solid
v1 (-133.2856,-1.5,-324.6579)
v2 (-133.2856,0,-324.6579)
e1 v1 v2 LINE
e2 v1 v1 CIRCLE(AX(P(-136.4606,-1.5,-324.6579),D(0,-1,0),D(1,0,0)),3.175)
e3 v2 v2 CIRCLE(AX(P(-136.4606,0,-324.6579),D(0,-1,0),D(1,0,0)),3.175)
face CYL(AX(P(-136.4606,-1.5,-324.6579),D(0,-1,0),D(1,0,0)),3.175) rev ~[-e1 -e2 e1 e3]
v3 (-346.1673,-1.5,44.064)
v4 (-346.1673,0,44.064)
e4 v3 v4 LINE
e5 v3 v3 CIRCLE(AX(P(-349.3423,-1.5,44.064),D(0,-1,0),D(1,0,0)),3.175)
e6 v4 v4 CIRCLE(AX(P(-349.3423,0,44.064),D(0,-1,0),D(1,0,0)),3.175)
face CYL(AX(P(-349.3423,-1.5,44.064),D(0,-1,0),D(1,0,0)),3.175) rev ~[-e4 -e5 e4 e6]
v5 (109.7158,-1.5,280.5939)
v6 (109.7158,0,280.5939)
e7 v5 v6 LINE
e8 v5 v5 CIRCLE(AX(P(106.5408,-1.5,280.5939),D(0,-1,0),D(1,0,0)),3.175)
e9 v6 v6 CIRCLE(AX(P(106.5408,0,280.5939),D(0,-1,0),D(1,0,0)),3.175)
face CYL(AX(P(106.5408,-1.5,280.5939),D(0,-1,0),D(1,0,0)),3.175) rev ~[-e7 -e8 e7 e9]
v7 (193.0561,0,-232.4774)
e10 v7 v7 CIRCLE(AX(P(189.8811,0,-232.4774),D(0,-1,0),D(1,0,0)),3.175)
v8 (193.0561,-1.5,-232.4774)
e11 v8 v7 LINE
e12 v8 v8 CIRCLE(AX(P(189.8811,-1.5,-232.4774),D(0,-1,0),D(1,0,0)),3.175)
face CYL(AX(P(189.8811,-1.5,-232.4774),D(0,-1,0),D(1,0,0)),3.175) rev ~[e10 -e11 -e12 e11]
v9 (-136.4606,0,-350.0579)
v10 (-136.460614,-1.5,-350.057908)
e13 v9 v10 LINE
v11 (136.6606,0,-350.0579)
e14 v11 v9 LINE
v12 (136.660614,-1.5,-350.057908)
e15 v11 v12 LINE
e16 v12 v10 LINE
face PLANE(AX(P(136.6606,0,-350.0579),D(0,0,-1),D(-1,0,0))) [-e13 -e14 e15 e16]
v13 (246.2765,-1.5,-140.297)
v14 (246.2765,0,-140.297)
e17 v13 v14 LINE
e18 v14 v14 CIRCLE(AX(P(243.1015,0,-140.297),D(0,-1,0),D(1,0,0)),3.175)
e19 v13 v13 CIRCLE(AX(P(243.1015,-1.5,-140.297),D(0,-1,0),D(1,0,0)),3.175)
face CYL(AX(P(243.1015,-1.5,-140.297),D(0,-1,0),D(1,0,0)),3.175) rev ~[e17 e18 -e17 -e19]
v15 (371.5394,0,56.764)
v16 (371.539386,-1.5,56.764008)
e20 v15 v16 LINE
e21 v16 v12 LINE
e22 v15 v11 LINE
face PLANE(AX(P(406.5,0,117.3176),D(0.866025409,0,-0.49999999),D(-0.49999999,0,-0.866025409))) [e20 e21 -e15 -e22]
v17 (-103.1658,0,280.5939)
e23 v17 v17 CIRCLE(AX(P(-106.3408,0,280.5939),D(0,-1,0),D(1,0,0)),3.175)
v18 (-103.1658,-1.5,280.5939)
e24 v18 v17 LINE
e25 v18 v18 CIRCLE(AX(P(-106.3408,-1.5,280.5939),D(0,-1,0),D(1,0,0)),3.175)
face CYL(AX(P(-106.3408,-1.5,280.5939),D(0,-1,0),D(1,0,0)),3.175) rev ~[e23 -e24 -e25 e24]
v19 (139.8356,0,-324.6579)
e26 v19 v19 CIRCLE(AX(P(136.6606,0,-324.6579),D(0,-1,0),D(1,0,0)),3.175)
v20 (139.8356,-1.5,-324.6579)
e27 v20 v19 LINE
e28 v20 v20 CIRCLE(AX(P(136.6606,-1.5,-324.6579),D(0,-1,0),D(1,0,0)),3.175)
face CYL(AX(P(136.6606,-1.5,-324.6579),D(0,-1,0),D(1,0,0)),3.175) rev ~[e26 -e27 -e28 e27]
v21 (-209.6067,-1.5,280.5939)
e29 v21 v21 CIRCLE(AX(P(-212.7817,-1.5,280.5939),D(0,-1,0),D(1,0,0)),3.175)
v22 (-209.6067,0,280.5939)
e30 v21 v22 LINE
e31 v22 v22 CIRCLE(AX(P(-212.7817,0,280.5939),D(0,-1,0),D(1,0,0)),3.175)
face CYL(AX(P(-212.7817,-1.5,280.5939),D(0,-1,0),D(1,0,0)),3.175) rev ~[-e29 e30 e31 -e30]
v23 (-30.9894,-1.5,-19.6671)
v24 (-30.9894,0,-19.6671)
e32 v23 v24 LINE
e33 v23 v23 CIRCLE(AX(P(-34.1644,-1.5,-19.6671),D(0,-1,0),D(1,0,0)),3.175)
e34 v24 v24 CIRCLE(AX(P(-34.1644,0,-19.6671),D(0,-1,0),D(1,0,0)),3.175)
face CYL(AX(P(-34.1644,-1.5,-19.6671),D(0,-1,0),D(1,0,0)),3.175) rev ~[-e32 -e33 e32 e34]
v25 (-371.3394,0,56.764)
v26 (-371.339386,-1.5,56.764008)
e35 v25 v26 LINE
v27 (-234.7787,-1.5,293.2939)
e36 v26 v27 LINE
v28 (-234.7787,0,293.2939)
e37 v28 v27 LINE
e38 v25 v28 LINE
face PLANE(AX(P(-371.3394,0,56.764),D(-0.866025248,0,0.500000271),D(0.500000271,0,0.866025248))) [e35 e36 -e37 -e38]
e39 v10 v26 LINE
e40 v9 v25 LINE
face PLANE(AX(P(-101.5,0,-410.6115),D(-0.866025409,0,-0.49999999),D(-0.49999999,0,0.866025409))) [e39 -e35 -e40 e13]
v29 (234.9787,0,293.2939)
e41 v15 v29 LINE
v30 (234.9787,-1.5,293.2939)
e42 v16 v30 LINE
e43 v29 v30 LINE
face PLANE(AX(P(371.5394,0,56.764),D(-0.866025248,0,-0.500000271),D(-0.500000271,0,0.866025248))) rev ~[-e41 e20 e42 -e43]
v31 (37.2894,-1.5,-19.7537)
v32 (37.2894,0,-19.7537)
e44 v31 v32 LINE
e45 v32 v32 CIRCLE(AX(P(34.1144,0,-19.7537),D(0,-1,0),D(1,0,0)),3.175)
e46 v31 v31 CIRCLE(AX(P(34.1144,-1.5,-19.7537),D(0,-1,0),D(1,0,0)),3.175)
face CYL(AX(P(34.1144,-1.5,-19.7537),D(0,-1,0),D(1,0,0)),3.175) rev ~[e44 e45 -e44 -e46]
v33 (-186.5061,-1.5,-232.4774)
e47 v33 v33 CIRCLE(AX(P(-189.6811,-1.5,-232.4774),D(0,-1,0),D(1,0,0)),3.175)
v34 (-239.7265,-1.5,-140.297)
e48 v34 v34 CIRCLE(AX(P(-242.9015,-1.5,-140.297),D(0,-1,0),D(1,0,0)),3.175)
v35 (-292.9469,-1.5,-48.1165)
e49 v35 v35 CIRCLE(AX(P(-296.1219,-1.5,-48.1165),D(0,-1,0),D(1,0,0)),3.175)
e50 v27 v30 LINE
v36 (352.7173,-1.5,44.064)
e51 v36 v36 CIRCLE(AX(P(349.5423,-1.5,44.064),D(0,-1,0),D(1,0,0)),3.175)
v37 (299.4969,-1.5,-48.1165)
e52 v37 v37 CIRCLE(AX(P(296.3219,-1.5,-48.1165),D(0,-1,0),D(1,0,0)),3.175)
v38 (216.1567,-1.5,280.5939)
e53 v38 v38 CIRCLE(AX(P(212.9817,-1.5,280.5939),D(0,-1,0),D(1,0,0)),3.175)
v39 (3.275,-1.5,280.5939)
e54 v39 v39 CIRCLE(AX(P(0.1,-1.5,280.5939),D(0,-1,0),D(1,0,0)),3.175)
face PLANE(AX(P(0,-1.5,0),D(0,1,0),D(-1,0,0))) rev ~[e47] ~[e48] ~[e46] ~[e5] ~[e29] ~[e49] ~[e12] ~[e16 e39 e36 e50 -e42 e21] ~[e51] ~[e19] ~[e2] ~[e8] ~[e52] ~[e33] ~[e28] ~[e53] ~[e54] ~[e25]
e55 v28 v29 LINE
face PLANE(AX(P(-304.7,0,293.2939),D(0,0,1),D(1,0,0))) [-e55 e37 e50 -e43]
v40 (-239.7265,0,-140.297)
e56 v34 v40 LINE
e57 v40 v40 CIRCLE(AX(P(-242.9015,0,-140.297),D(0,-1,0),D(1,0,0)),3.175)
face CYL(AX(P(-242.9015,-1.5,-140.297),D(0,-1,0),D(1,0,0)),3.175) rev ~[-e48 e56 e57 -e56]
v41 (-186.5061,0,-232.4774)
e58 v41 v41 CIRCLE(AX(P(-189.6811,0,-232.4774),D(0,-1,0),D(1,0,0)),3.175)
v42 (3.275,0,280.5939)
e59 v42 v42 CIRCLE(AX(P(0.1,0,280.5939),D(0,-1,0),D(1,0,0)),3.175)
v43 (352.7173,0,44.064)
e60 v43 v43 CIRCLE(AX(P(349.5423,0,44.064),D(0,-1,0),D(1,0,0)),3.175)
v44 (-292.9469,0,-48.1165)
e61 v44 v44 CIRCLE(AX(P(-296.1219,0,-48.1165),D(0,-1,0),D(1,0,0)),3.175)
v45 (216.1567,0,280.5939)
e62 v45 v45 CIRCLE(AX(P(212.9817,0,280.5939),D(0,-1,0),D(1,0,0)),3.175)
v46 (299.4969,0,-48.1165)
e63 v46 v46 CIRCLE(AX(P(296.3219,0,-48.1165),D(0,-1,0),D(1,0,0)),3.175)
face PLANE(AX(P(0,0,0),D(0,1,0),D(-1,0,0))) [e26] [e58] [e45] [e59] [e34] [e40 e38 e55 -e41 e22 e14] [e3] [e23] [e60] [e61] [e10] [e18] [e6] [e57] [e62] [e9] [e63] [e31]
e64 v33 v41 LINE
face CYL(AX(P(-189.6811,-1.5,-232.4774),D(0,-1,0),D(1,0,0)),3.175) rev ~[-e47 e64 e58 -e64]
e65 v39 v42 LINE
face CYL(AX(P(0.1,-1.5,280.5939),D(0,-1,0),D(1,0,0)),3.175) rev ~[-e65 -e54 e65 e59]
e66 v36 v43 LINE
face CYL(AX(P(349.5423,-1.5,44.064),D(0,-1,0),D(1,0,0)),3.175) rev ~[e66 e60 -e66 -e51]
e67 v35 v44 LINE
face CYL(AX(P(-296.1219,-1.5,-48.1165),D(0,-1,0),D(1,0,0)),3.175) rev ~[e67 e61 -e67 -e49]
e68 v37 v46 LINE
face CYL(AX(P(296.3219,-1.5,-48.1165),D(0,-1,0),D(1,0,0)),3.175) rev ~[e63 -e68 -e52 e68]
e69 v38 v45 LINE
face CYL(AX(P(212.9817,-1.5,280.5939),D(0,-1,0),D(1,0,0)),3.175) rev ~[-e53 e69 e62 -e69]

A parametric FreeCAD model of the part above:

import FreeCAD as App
import Part
import Sketcher
from FreeCAD import Vector
Q = App.Units.Quantity

doc = App.newDocument("Part")
body = doc.addObject("PartDesign::Body", "Body")

# Sketch on XZ plane
sketch1 = body.newObject("Sketcher::SketchObject", "Sketch")
sketch1.AttachmentSupport = (doc.getObject("XZ_Plane"), [""])
sketch1.MapMode = "FlatFace"
sketch1.addGeometry([
    Part.LineSegment(Vector(101.7, -410.6115, 0), Vector(-101.5, -410.6115, 0)),  # 0
    Part.LineSegment(Vector(-101.5, -410.6115, 0), Vector(-406.3, 117.3176, 0)),  # 1
    Part.LineSegment(Vector(-406.3, 117.3176, 0), Vector(-304.7, 293.2939, 0)),  # 2
    Part.LineSegment(Vector(-304.7, 293.2939, 0), Vector(304.9, 293.2939, 0)),  # 3
    Part.LineSegment(Vector(304.9, 293.2939, 0), Vector(406.5, 117.3176, 0)),  # 4
    Part.LineSegment(Vector(406.5, 117.3176, 0), Vector(101.7, -410.6115, 0)),  # 5
], False)
sketch1.addConstraint([
    Sketcher.Constraint("Coincident", 0, 2, 1, 1),
    Sketcher.Constraint("Coincident", 1, 2, 2, 1),
    Sketcher.Constraint("Coincident", 2, 2, 3, 1),
    Sketcher.Constraint("Coincident", 3, 2, 4, 1),
    Sketcher.Constraint("Coincident", 4, 2, 5, 1),
    Sketcher.Constraint("Coincident", 5, 2, 0, 1),
    Sketcher.Constraint("Horizontal", 0),
    Sketcher.Constraint("Horizontal", 3),
    Sketcher.Constraint("Parallel", 1, 4),
    Sketcher.Constraint("Parallel", 2, 5),
    Sketcher.Constraint("Horizontal", 1, 2, 4, 2),
    Sketcher.Constraint("Equal", 2, 4),
    Sketcher.Constraint("DistanceX", 0, 2, 0, 1, Q("8 in")),
    Sketcher.Constraint("DistanceX", 3, 1, 3, 2, Q("24 in")),
    Sketcher.Constraint("Distance", 1, Q("24 in")),
    Sketcher.Constraint("Distance", 2, Q("8 in")),
    Sketcher.Constraint("DistanceY", -1, 1, 2, 2, Q("11.547 in")),
    Sketcher.Constraint("DistanceX", 0, 2, -1, 1, 101.5),
])
pad1 = body.newObject("PartDesign::Pad", "Pad")
pad1.Profile = sketch1
pad1.Length = 1.5

# Sketch on XZ plane
sketch2 = body.newObject("Sketcher::SketchObject", "Sketch001")
sketch2.AttachmentSupport = (doc.getObject("XZ_Plane"), [""])
sketch2.MapMode = "FlatFace"
sketch2.addGeometry([
    Part.LineSegment(Vector(101.7, -410.6115, 0), Vector(-101.5, -410.6115, 0)),  # 0
    Part.LineSegment(Vector(-101.5, -410.6115, 0), Vector(-136.460627, -350.057916, 0)),  # 1
    Part.LineSegment(Vector(-136.4606, -350.0579, 0), Vector(136.6606, -350.0579, 0)),  # 2
    Part.LineSegment(Vector(136.660627, -350.057916, 0), Vector(101.7, -410.6115, 0)),  # 3
    Part.LineSegment(Vector(-234.7787, 293.2939, 0), Vector(-371.3394, 56.764, 0)),  # 4
    Part.LineSegment(Vector(-371.339373, 56.764016, 0), Vector(-406.3, 117.3176, 0)),  # 5
    Part.LineSegment(Vector(-406.3, 117.3176, 0), Vector(-304.7, 293.2939, 0)),  # 6
    Part.LineSegment(Vector(-304.7, 293.2939, 0), Vector(-234.7787, 293.2939, 0)),  # 7
    Part.LineSegment(Vector(406.5, 117.3176, 0), Vector(371.539373, 56.764016, 0)),  # 8
    Part.LineSegment(Vector(371.5394, 56.764, 0), Vector(234.9787, 293.2939, 0)),  # 9
    Part.LineSegment(Vector(234.9787, 293.2939, 0), Vector(304.9, 293.2939, 0)),  # 10
    Part.LineSegment(Vector(304.9, 293.2939, 0), Vector(406.5, 117.3176, 0)),  # 11
], False)
sketch2.addConstraint([
    Sketcher.Constraint("Coincident", 0, 2, 1, 1),
    Sketcher.Constraint("Coincident", 1, 2, 2, 1),
    Sketcher.Constraint("Coincident", 2, 2, 3, 1),
    Sketcher.Constraint("Coincident", 3, 2, 0, 1),
    Sketcher.Constraint("Coincident", 4, 2, 5, 1),
    Sketcher.Constraint("Coincident", 5, 2, 6, 1),
    Sketcher.Constraint("Coincident", 6, 2, 7, 1),
    Sketcher.Constraint("Coincident", 7, 2, 4, 1),
    Sketcher.Constraint("Coincident", 8, 2, 9, 1),
    Sketcher.Constraint("Coincident", 9, 2, 10, 1),
    Sketcher.Constraint("Coincident", 10, 2, 11, 1),
    Sketcher.Constraint("Coincident", 11, 2, 8, 1),
    Sketcher.Constraint("Horizontal", 0),
    Sketcher.Constraint("Horizontal", 2),
    Sketcher.Constraint("Horizontal", 7),
    Sketcher.Constraint("Horizontal", 10),
    Sketcher.Constraint("Parallel", 3, 4),
    Sketcher.Constraint("Parallel", 1, 5),
    Sketcher.Constraint("Parallel", 4, 6),
    Sketcher.Constraint("Parallel", 6, 8),
    Sketcher.Constraint("Parallel", 5, 9),
    Sketcher.Constraint("Parallel", 9, 11),
    Sketcher.Constraint("Horizontal", 4, 2, 8, 2),
    Sketcher.Constraint("Horizontal", 7, 2, 9, 2),
    Sketcher.Constraint("Horizontal", 5, 2, 11, 2),
    Sketcher.Constraint("Equal", 1, 3),
    Sketcher.Constraint("Equal", 3, 5),
    Sketcher.Constraint("DistanceX", 0, 2, 0, 1, Q("8 in")),
    Sketcher.Constraint("Distance", 6, Q("8 in")),
    Sketcher.Constraint("Angle", 1, Q("120 deg")),
    Sketcher.Constraint("DistanceY", 0, 2, 1, 2, Q("2.384 in")),
    Sketcher.Constraint("DistanceX", 4, 2, 2, 2, Q("20 in")),
    Sketcher.Constraint("DistanceX", 1, 2, 8, 2, Q("20 in")),
    Sketcher.Constraint("DistanceY", -1, 1, 6, 2, Q("11.547 in")),
    Sketcher.Constraint("DistanceY", 0, 2, -1, 1, Q("16.1658 in")),
    Sketcher.Constraint("DistanceX", 0, 2, -1, 1, 101.5),
])
pocket1 = body.newObject("PartDesign::Pocket", "Pocket")
pocket1.Profile = sketch2
pocket1.Length = Q("1 in")
pocket1.Reversed = True

# Sketch on XZ plane
sketch3 = body.newObject("Sketcher::SketchObject", "Sketch002")
sketch3.AttachmentSupport = (doc.getObject("XZ_Plane"), [""])
sketch3.MapMode = "FlatFace"
sketch3.AttachmentOffset = App.Placement(Vector(0, 0, 1.5), App.Rotation())
sketch3.addGeometry([
    Part.Circle(Vector(-349.3423, 44.064, 0), Vector(0, 0, 1), 3.175),  # 0
    Part.Circle(Vector(-212.7817, 280.5939, 0), Vector(0, 0, 1), 3.175),  # 1
    Part.Circle(Vector(212.9817, 280.5939, 0), Vector(0, 0, 1), 3.175),  # 2
    Part.Circle(Vector(349.5423, 44.064, 0), Vector(0, 0, 1), 3.175),  # 3
    Part.Circle(Vector(136.6606, -324.6579, 0), Vector(0, 0, 1), 3.175),  # 4
    Part.Circle(Vector(-136.4606, -324.6579, 0), Vector(0, 0, 1), 3.175),  # 5
], False)
sketch3.addConstraint([
    Sketcher.Constraint("Equal", 0, 1),
    Sketcher.Constraint("Equal", 1, 2),
    Sketcher.Constraint("Equal", 2, 3),
    Sketcher.Constraint("Equal", 3, 4),
    Sketcher.Constraint("Equal", 4, 5),
    Sketcher.Constraint("Horizontal", 1, 3, 2, 3),
    Sketcher.Constraint("Horizontal", 0, 3, 3, 3),
    Sketcher.Constraint("Horizontal", 4, 3, 5, 3),
    Sketcher.Constraint("Diameter", 0, Q("0.25 in")),
    Sketcher.Constraint("DistanceX", 1, 3, 2, 3, 425.7634),
    Sketcher.Constraint("DistanceY", -1, 1, 1, 3, Q("11.047 in")),
    Sketcher.Constraint("DistanceY", -1, 1, 0, 3, Q("1.7348 in")),
    Sketcher.Constraint("DistanceX", -1, 1, 2, 3, Q("8.3851 in")),
    Sketcher.Constraint("DistanceX", -1, 1, 3, 3, Q("13.7615 in")),
    Sketcher.Constraint("DistanceY", 4, 3, -1, 1, Q("12.7818 in")),
    Sketcher.Constraint("DistanceX", 0, 3, 1, 3, Q("5.3764 in")),
    Sketcher.Constraint("DistanceX", 5, 3, 4, 3, Q("10.7528 in")),
    Sketcher.Constraint("DistanceX", -1, 1, 4, 3, 136.6606),
])
pocket2 = body.newObject("PartDesign::Pocket", "Pocket001")
pocket2.Profile = sketch3
pocket2.Length = Q("1 in")

# Sketch on XZ plane
sketch4 = body.newObject("Sketcher::SketchObject", "Sketch003")
sketch4.AttachmentSupport = (doc.getObject("XZ_Plane"), [""])
sketch4.MapMode = "FlatFace"
sketch4.AttachmentOffset = App.Placement(Vector(0, 0, 1.5), App.Rotation())
sketch4.addGeometry([
    Part.Circle(Vector(-106.3408, 280.5939, 0), Vector(0, 0, 1), 3.175),  # 0
    Part.Circle(Vector(0.1, 280.5939, 0), Vector(0, 0, 1), 3.175),  # 1
    Part.Circle(Vector(106.5408, 280.5939, 0), Vector(0, 0, 1), 3.175),  # 2
    Part.Circle(Vector(-296.1219, -48.1165, 0), Vector(0, 0, 1), 3.175),  # 3
    Part.Circle(Vector(-242.9015, -140.297, 0), Vector(0, 0, 1), 3.175),  # 4
    Part.Circle(Vector(-189.6811, -232.4774, 0), Vector(0, 0, 1), 3.175),  # 5
    Part.Circle(Vector(189.8811, -232.4774, 0), Vector(0, 0, 1), 3.175),  # 6
    Part.Circle(Vector(243.1015, -140.297, 0), Vector(0, 0, 1), 3.175),  # 7
    Part.Circle(Vector(296.3219, -48.1165, 0), Vector(0, 0, 1), 3.175),  # 8
], False)
sketch4.addConstraint([
    Sketcher.Constraint("Equal", 0, 1),
    Sketcher.Constraint("Equal", 1, 2),
    Sketcher.Constraint("Equal", 2, 3),
    Sketcher.Constraint("Equal", 3, 4),
    Sketcher.Constraint("Equal", 4, 5),
    Sketcher.Constraint("Equal", 5, 6),
    Sketcher.Constraint("Equal", 6, 7),
    Sketcher.Constraint("Equal", 7, 8),
    Sketcher.Constraint("Horizontal", 0, 3, 1, 3),
    Sketcher.Constraint("Horizontal", 1, 3, 2, 3),
    Sketcher.Constraint("Horizontal", 5, 3, 6, 3),
    Sketcher.Constraint("Horizontal", 4, 3, 7, 3),
    Sketcher.Constraint("Horizontal", 3, 3, 8, 3),
    Sketcher.Constraint("Diameter", 0, Q("0.25 in")),
    Sketcher.Constraint("DistanceY", -1, 1, 0, 3, Q("11.047 in")),
    Sketcher.Constraint("DistanceX", 4, 3, 1, 3, Q("9.567 in")),
    Sketcher.Constraint("DistanceX", 1, 3, 7, 3, Q("9.567 in")),
    Sketcher.Constraint("DistanceY", 4, 3, -1, 1, Q("5.5235 in")),
    Sketcher.Constraint("DistanceX", 3, 3, 0, 3, Q("7.4717 in")),
    Sketcher.Constraint("DistanceX", 3, 3, 4, 3, Q("2.0953 in")),
    Sketcher.Constraint("DistanceX", 4, 3, 5, 3, Q("2.0953 in")),
    Sketcher.Constraint("DistanceY", 5, 3, 3, 3, Q("7.2583 in")),
    Sketcher.Constraint("DistanceX", 5, 3, 6, 3, Q("14.9434 in")),
    Sketcher.Constraint("DistanceX", 2, 3, 7, 3, Q("5.3764 in")),
    Sketcher.Constraint("DistanceX", 7, 3, 8, 3, Q("2.0953 in")),
    Sketcher.Constraint("DistanceX", 0, 3, -1, 1, 106.3408),
    Sketcher.Constraint("DistanceY", 3, 3, -1, 1, 48.1165),
])
pocket3 = body.newObject("PartDesign::Pocket", "Pocket002")
pocket3.Profile = sketch4
pocket3.Length = Q("1 in")

# Sketch on XZ plane
sketch5 = body.newObject("Sketcher::SketchObject", "Sketch004")
sketch5.AttachmentSupport = (doc.getObject("XZ_Plane"), [""])
sketch5.MapMode = "FlatFace"
sketch5.AttachmentOffset = App.Placement(Vector(0, 0, 1.5), App.Rotation())
sketch5.addGeometry([
    Part.Circle(Vector(-34.1644, -19.6671, 0), Vector(0, 0, 1), 3.175),
    Part.Circle(Vector(34.1144, -19.7537, 0), Vector(0, 0, 1), 3.175),
], False)
sketch5.addConstraint([
    Sketcher.Constraint("Equal", 0, 1),
    Sketcher.Constraint("Diameter", 0, Q("0.25 in")),
    Sketcher.Constraint("DistanceY", 0, 3, -1, 1, Q("0.7743 in")),
    Sketcher.Constraint("DistanceY", 1, 3, -1, 1, Q("0.7777 in")),
    Sketcher.Constraint("DistanceX", 0, 3, -1, 1, 34.1644),
    Sketcher.Constraint("DistanceX", -1, 1, 1, 3, 34.1144),
])
pocket4 = body.newObject("PartDesign::Pocket", "Pocket003")
pocket4.Profile = sketch5
pocket4.Length = Q("1 in")

doc.recompute()
